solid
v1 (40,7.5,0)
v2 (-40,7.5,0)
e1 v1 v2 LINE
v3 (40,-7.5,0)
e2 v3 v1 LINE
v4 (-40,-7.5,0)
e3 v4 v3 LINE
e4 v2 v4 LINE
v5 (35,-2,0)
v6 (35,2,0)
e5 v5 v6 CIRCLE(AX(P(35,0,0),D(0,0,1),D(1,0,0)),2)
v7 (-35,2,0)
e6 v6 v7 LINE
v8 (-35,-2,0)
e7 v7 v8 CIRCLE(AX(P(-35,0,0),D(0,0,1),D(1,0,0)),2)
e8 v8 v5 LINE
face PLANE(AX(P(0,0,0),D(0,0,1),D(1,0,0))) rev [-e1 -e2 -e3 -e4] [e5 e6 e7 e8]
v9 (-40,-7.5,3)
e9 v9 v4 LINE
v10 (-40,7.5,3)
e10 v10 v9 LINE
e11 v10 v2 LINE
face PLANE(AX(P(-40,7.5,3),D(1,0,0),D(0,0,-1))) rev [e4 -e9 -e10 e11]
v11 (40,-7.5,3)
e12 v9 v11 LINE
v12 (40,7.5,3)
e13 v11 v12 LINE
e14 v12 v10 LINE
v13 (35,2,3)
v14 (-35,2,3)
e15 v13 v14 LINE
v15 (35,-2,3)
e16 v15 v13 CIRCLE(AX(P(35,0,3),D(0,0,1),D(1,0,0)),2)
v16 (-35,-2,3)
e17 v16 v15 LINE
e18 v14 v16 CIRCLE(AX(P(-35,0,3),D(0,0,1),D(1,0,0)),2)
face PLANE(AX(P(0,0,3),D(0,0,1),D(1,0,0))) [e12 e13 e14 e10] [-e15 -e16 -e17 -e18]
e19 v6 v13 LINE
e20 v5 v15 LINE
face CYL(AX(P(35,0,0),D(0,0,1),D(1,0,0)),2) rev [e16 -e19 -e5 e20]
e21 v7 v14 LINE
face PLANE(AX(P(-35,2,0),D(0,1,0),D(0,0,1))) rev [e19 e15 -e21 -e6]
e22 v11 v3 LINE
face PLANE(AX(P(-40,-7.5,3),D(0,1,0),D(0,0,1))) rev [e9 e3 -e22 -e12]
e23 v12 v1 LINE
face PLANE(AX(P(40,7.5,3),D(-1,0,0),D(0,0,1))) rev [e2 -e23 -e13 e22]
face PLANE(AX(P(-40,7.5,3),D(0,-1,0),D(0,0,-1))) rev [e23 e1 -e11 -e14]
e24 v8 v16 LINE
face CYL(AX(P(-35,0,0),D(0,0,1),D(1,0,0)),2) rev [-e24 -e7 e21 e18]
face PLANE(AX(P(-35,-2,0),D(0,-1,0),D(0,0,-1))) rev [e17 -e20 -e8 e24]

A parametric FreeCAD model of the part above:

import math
import FreeCAD as App
import Part
import Sketcher
from FreeCAD import Vector
Q = App.Units.Quantity

doc = App.newDocument("Part")
body = doc.addObject("PartDesign::Body", "Body")

sketch1 = body.newObject("Sketcher::SketchObject", "Sketch")
sketch1.AttachmentSupport = (doc.getObject("XY_Plane"), [""])
sketch1.MapMode = "FlatFace"
sketch1.addGeometry([
    Part.LineSegment(Vector(-40, 8, 0), Vector(-40, -8, 0)),
    Part.LineSegment(Vector(-40, -8, 0), Vector(40, -8, 0)),
    Part.LineSegment(Vector(40, -8, 0), Vector(40, 8, 0)),
    Part.LineSegment(Vector(40, 8, 0), Vector(-40, 8, 0)),
], False)
sketch1.addConstraint([
    Sketcher.Constraint("Coincident", 0, 2, 1, 1),
    Sketcher.Constraint("Coincident", 1, 2, 2, 1),
    Sketcher.Constraint("Coincident", 2, 2, 3, 1),
    Sketcher.Constraint("Coincident", 3, 2, 0, 1),
    Sketcher.Constraint("Vertical", 0),
    Sketcher.Constraint("Horizontal", 1),
    Sketcher.Constraint("Vertical", 2),
    Sketcher.Constraint("Horizontal", 3),
    Sketcher.Constraint("Symmetric", 0, 2, 2, 2, -1, 1),
    Sketcher.Constraint("DistanceX", 1, 1, 1, 2, Q("80 mm")),
    Sketcher.Constraint("DistanceY", 0, 2, 0, 1, Q("15 mm")),
])
pad1 = body.newObject("PartDesign::Pad", "Pad")
pad1.Profile = sketch1
pad1.Length = 3

sketch2 = body.newObject("Sketcher::SketchObject", "Sketch001")
sketch2.AttachmentSupport = (doc.getObject("XY_Plane"), [""])
sketch2.MapMode = "FlatFace"
sketch2.AttachmentOffset = App.Placement(Vector(0, 0, 3), App.Rotation())
sketch2.addGeometry([
    Part.LineSegment(Vector(35, 2, 0), Vector(-35, 2, 0)),
    Part.ArcOfCircle(Part.Circle(Vector(-35, 0, 0), Vector(0, 0, 1), 2), math.radians(90), math.radians(270)),
    Part.LineSegment(Vector(-35, -2, 0), Vector(35, -2, 0)),
    Part.ArcOfCircle(Part.Circle(Vector(35, 0, 0), Vector(0, 0, 1), 2), math.radians(-90), math.radians(90)),
], False)
sketch2.addConstraint([
    Sketcher.Constraint("Tangent", 0, 2, 1, 1),
    Sketcher.Constraint("Tangent", 1, 2, 2, 1),
    Sketcher.Constraint("Tangent", 2, 2, 3, 1),
    Sketcher.Constraint("Tangent", 3, 2, 0, 1),
    Sketcher.Constraint("Horizontal", 0),
    Sketcher.Constraint("Horizontal", 2),
    Sketcher.Constraint("Symmetric", 1, 3, 3, 3, -1, 1),
    Sketcher.Constraint("Radius", 1, Q("2 mm")),
    Sketcher.Constraint("DistanceX", 0, 2, 0, 1, Q("70 mm")),
])
pocket1 = body.newObject("PartDesign::Pocket", "Pocket")
pocket1.Profile = sketch2
pocket1.Length = 3

doc.recompute()
